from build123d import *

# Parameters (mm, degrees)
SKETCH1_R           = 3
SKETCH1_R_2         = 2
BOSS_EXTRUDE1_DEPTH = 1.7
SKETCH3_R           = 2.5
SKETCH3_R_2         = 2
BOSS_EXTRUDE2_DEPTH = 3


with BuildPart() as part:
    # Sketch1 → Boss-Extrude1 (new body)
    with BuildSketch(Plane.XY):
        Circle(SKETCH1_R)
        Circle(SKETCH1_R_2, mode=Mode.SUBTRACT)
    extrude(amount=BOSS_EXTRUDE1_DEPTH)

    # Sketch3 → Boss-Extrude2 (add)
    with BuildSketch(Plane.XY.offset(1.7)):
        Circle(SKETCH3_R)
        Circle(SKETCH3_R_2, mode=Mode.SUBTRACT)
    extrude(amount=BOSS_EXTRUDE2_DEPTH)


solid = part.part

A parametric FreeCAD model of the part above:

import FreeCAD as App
import Part
import Sketcher

V = App.Vector

doc = App.newDocument("Part")
body = doc.addObject("PartDesign::Body", "Body")

sketch1 = doc.addObject("Sketcher::SketchObject", "Sketch")
body.addObject(sketch1)
sketch1.AttachmentSupport = (doc.XY_Plane, [""])
sketch1.MapMode = "FlatFace"
sketch1.addGeometry([
    Part.Circle(V(0, 0, 0), V(0, 0, 1), 3),
    Part.Circle(V(0, 0, 0), V(0, 0, 1), 2),
], False)
sketch1.addConstraint([
    Sketcher.Constraint("Coincident", 0, 3, -1, 1),
    Sketcher.Constraint("Coincident", 1, 3, -1, 1),
    Sketcher.Constraint("Diameter", 0, 6.0),
    Sketcher.Constraint("Diameter", 1, 4.0),
])
pad1 = doc.addObject("PartDesign::Pad", "Pad")
body.addObject(pad1)
pad1.Profile = sketch1
pad1.Length = 1.7

sketch2 = doc.addObject("Sketcher::SketchObject", "Sketch001")
body.addObject(sketch2)
sketch2.AttachmentSupport = (doc.XY_Plane, [""])
sketch2.MapMode = "FlatFace"
sketch2.AttachmentOffset = App.Placement(V(0, 0, 1.7), App.Rotation())
sketch2.addGeometry([
    Part.Circle(V(0, 0, 0), V(0, 0, 1), 2.5),
    Part.Circle(V(0, 0, 0), V(0, 0, 1), 2),
], False)
sketch2.addConstraint([
    Sketcher.Constraint("Coincident", 0, 3, -1, 1),
    Sketcher.Constraint("Coincident", 1, 3, -1, 1),
    Sketcher.Constraint("Diameter", 0, 5.0),
    Sketcher.Constraint("Diameter", 1, 4.0),
])
pad2 = doc.addObject("PartDesign::Pad", "Pad001")
body.addObject(pad2)
pad2.Profile = sketch2
pad2.Length = 3

doc.recompute()
